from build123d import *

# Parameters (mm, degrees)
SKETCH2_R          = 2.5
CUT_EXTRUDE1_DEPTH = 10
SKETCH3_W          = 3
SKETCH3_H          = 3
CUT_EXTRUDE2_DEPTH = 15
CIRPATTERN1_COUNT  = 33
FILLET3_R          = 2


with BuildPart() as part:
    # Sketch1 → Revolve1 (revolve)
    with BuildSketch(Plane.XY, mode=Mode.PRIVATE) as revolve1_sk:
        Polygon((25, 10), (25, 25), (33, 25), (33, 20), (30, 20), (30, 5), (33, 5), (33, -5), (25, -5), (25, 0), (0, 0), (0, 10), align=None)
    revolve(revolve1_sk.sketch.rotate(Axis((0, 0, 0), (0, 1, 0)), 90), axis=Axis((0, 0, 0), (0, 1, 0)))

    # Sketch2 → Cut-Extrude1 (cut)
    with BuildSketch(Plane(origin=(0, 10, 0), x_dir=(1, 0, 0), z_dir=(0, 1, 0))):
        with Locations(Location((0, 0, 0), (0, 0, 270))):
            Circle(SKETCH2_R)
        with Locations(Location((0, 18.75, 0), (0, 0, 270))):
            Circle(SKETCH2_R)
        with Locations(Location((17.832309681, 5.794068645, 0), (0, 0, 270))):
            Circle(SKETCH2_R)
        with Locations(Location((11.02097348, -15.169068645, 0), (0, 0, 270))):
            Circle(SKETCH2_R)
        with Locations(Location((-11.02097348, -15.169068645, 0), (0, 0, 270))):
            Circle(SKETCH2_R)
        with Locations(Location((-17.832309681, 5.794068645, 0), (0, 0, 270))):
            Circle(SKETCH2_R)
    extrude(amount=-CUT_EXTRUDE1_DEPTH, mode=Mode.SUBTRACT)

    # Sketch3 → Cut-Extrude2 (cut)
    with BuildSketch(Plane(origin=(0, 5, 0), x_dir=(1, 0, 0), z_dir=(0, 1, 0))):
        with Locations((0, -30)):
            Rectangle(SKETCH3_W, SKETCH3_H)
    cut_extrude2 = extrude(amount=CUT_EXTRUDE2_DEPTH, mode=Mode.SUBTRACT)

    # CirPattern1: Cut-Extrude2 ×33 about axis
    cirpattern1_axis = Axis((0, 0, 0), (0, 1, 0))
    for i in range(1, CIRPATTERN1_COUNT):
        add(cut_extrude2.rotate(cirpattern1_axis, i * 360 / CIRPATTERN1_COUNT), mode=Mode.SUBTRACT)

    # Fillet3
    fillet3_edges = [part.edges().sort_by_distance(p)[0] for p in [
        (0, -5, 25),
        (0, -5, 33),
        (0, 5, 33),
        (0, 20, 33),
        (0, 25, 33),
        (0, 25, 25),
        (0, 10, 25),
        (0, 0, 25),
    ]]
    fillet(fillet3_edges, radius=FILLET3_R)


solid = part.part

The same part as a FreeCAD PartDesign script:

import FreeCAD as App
import Part
import Sketcher

V = App.Vector
Q = App.Units.Quantity


def edges_at(feature, points):
    """Names of the edges that pass closest to the given points."""
    edges = feature.Shape.Edges
    near = lambda p: min(range(len(edges)), key=lambda i: edges[i].distToShape(Part.Vertex(*p))[0])
    return sorted({f"Edge{near(p) + 1}" for p in points})


def add_polygon(sketch, points):
    """Adds a closed chain of lines whose ends are joined by coincident constraints."""
    first, n = sketch.GeometryCount, len(points)
    for a, b in zip(points, points[1:] + points[:1]):
        sketch.addGeometry(Part.LineSegment(App.Vector(*a, 0), App.Vector(*b, 0)), False)
    for i in range(n):
        sketch.addConstraint(Sketcher.Constraint("Coincident", first + i, 2, first + (i + 1) % n, 1))

doc = App.newDocument("Part")
body = doc.addObject("PartDesign::Body", "Body")

# Sketch on XY plane
sketch1 = doc.addObject("Sketcher::SketchObject", "Sketch")
body.addObject(sketch1)
sketch1.AttachmentSupport = (doc.XY_Plane, [""])
sketch1.MapMode = "FlatFace"
add_polygon(sketch1, [(25, 25), (25, 10), (0, 10), (0, 0), (25, 0), (25, -5), (33, -5), (33, 5), (30, 5), (30, 20), (33, 20), (33, 25)])  # lines 0-11
sketch1.addConstraint(Sketcher.Constraint("Vertical", 0))
sketch1.addConstraint(Sketcher.Constraint("Horizontal", 1))
sketch1.addConstraint(Sketcher.Constraint("Vertical", 2))
sketch1.addConstraint(Sketcher.Constraint("Horizontal", 3))
sketch1.addConstraint(Sketcher.Constraint("Vertical", 4))
sketch1.addConstraint(Sketcher.Constraint("Horizontal", 5))
sketch1.addConstraint(Sketcher.Constraint("Vertical", 6))
sketch1.addConstraint(Sketcher.Constraint("Horizontal", 7))
sketch1.addConstraint(Sketcher.Constraint("Vertical", 8))
sketch1.addConstraint(Sketcher.Constraint("Horizontal", 9))
sketch1.addConstraint(Sketcher.Constraint("Vertical", 10))
sketch1.addConstraint(Sketcher.Constraint("Horizontal", 11))
sketch1.addConstraint(Sketcher.Constraint("Coincident", 2, 2, -1, 1))
sketch1.addConstraint(Sketcher.Constraint("Vertical", 0, 2, 3, 2))
sketch1.addConstraint(Sketcher.Constraint("Vertical", 6, 2, 9, 2))
sketch1.addConstraint(Sketcher.Constraint("Equal", 2, 6))
sketch1.addConstraint(Sketcher.Constraint("Equal", 0, 8))
sketch1.addConstraint(Sketcher.Constraint("DistanceX", 1, 2, 1, 1, Q("25 mm")))
sketch1.addConstraint(Sketcher.Constraint("DistanceX", 5, 1, 5, 2, Q("8 mm")))
sketch1.addConstraint(Sketcher.Constraint("DistanceX", 7, 2, 7, 1, Q("3 mm")))
sketch1.addConstraint(Sketcher.Constraint("DistanceY", 0, 2, 0, 1, Q("15 mm")))
sketch1.addConstraint(Sketcher.Constraint("DistanceY", 2, 2, 2, 1, Q("10 mm")))
sketch1.addConstraint(Sketcher.Constraint("DistanceY", 4, 2, 4, 1, Q("5 mm")))
revolution = doc.addObject("PartDesign::Revolution", "Revolution")
body.addObject(revolution)
revolution.Profile = sketch1
revolution.ReferenceAxis = (sketch1, ["V_Axis"])
revolution.Angle = 360

# Sketch on XZ plane
sketch2 = doc.addObject("Sketcher::SketchObject", "Sketch001")
body.addObject(sketch2)
sketch2.AttachmentSupport = (doc.XZ_Plane, [""])
sketch2.MapMode = "FlatFace"
sketch2.AttachmentOffset = App.Placement(V(0, 0, -10), App.Rotation())
sketch2.addGeometry(Part.Circle(V(0, 0, 0), V(0, 0, 1), 2.5), False)
sketch2.addGeometry(Part.Circle(V(0, -18.8, 0), V(0, 0, 1), 2.5), False)
sketch2.addGeometry(Part.Circle(V(17.8, -5.8, 0), V(0, 0, 1), 2.5), False)
sketch2.addGeometry(Part.Circle(V(11, 15.2, 0), V(0, 0, 1), 2.5), False)
sketch2.addGeometry(Part.Circle(V(-11, 15.2, 0), V(0, 0, 1), 2.5), False)
sketch2.addGeometry(Part.Circle(V(-17.8, -5.8, 0), V(0, 0, 1), 2.5), False)
sketch2.addConstraint(Sketcher.Constraint("Coincident", 0, 3, -1, 1))
sketch2.addConstraint(Sketcher.Constraint("Equal", 0, 1))
sketch2.addConstraint(Sketcher.Constraint("Equal", 1, 2))
sketch2.addConstraint(Sketcher.Constraint("Equal", 2, 3))
sketch2.addConstraint(Sketcher.Constraint("Equal", 3, 4))
sketch2.addConstraint(Sketcher.Constraint("Equal", 4, 5))
sketch2.addConstraint(Sketcher.Constraint("Symmetric", 3, 3, 4, 3, -2))
sketch2.addConstraint(Sketcher.Constraint("Symmetric", 2, 3, 5, 3, -2))
sketch2.addConstraint(Sketcher.Constraint("PointOnObject", 1, 3, -2))
sketch2.addConstraint(Sketcher.Constraint("Diameter", 0, Q("5 mm")))
sketch2.addConstraint(Sketcher.Constraint("DistanceY", 1, 3, -1, 1, Q("18.75 mm")))
sketch2.addConstraint(Sketcher.Constraint("DistanceX", -1, 1, 2, 3, Q("17.83231 mm")))
sketch2.addConstraint(Sketcher.Constraint("DistanceY", 2, 3, -1, 1, Q("5.794069 mm")))
sketch2.addConstraint(Sketcher.Constraint("DistanceY", -1, 1, 3, 3, Q("15.169069 mm")))
sketch2.addConstraint(Sketcher.Constraint("DistanceX", -1, 1, 3, 3, Q("11.020973 mm")))
pocket1 = doc.addObject("PartDesign::Pocket", "Pocket")
body.addObject(pocket1)
pocket1.Profile = sketch2
pocket1.Length = 10
pocket1.Reversed = True

# Sketch on XZ plane
sketch3 = doc.addObject("Sketcher::SketchObject", "Sketch002")
body.addObject(sketch3)
sketch3.AttachmentSupport = (doc.XZ_Plane, [""])
sketch3.MapMode = "FlatFace"
sketch3.AttachmentOffset = App.Placement(V(0, 0, -5), App.Rotation())
add_polygon(sketch3, [(-1.5, 28.5), (-1.5, 31.5), (1.5, 31.5), (1.5, 28.5)])  # lines 0-3
sketch3.addConstraint(Sketcher.Constraint("Vertical", 0))
sketch3.addConstraint(Sketcher.Constraint("Horizontal", 1))
sketch3.addConstraint(Sketcher.Constraint("Vertical", 2))
sketch3.addConstraint(Sketcher.Constraint("Horizontal", 3))
sketch3.addConstraint(Sketcher.Constraint("Equal", 3, 0))
sketch3.addConstraint(Sketcher.Constraint("DistanceX", 1, 1, 1, 2, Q("3 mm")))
sketch3.addConstraint(Sketcher.Constraint("DistanceX", 0, 2, -1, 1, Q("1.5 mm")))
sketch3.addConstraint(Sketcher.Constraint("DistanceY", -1, 1, 0, 2, Q("31.5 mm")))
pocket2 = doc.addObject("PartDesign::Pocket", "Pocket001")
body.addObject(pocket2)
pocket2.Profile = sketch3
pocket2.Length = 15
doc.recompute()

polarpattern = doc.addObject("PartDesign::PolarPattern", "PolarPattern")
body.addObject(polarpattern)
polarpattern.Originals = [pocket2]
polarpattern.Axis = (doc.Y_Axis, [""])
polarpattern.Angle = 360
polarpattern.Occurrences = 33
body.Tip = polarpattern
doc.recompute()

fillet = doc.addObject("PartDesign::Fillet", "Fillet")
body.addObject(fillet)
fillet.Base = (polarpattern, edges_at(polarpattern, [
    (0, -5, 25),
    (0, -5, 33),
    (0, 5, 33),
    (0, 20, 33),
    (0, 25, 33),
    (0, 25, 25),
    (0, 10, 25),
    (0, 0, 25),
]))
fillet.Radius = 2

doc.recompute()
